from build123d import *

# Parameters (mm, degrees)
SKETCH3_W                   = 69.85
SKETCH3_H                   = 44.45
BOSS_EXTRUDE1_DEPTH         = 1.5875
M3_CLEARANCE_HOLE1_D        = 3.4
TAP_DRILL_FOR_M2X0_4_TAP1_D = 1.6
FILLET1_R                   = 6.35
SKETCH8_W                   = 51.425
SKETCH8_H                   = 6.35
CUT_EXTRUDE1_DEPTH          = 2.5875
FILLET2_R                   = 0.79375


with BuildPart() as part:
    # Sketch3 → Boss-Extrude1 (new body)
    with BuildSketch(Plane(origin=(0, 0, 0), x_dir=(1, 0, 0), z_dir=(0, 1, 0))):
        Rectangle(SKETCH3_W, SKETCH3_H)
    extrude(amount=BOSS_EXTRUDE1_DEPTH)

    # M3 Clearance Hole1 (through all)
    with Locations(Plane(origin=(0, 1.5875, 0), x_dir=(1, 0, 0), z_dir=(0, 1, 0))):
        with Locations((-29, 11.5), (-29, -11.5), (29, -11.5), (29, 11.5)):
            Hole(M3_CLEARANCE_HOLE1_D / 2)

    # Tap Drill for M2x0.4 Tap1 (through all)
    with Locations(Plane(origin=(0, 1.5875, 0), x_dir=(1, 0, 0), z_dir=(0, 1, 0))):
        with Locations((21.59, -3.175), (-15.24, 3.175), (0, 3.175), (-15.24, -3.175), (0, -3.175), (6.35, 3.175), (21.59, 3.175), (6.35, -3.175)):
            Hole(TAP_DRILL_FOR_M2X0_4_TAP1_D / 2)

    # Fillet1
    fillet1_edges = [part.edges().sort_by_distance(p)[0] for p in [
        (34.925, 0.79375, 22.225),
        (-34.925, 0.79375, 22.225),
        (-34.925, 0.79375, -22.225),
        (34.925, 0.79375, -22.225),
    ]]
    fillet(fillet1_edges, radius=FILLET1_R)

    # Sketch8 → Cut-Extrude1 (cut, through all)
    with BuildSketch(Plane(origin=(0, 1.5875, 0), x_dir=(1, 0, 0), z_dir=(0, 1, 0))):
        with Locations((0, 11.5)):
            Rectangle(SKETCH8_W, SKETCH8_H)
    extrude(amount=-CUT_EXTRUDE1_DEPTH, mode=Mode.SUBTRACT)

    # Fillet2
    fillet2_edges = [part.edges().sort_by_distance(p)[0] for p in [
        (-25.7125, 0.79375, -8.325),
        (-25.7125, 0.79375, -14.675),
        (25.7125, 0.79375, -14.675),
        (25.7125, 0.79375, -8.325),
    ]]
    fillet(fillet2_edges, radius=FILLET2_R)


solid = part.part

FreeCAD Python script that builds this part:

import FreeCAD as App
import Part
import Sketcher
Q = App.Units.Quantity


def edges_at(feature, points):
    """Names of the edges that pass closest to the given points."""
    edges = feature.Shape.Edges
    near = lambda p: min(range(len(edges)), key=lambda i: edges[i].distToShape(Part.Vertex(*p))[0])
    return sorted({f"Edge{near(p) + 1}" for p in points})


def add_polygon(sketch, points):
    """Adds a closed chain of lines whose ends are joined by coincident constraints."""
    first, n = sketch.GeometryCount, len(points)
    for a, b in zip(points, points[1:] + points[:1]):
        sketch.addGeometry(Part.LineSegment(App.Vector(*a, 0), App.Vector(*b, 0)), False)
    for i in range(n):
        sketch.addConstraint(Sketcher.Constraint("Coincident", first + i, 2, first + (i + 1) % n, 1))

doc = App.newDocument("Part")
body = doc.addObject("PartDesign::Body", "Body")

# Sketch on XZ plane
sketch1 = doc.addObject("Sketcher::SketchObject", "Sketch")
body.addObject(sketch1)
sketch1.AttachmentSupport = (doc.XZ_Plane, [""])
sketch1.MapMode = "FlatFace"
add_polygon(sketch1, [(-35, -22), (-35, 22), (35, 22), (35, -22)])  # lines 0-3
sketch1.addConstraint([
    Sketcher.Constraint("Vertical", 0),
    Sketcher.Constraint("Horizontal", 1),
    Sketcher.Constraint("Vertical", 2),
    Sketcher.Constraint("Horizontal", 3),
    Sketcher.Constraint("Symmetric", 0, 2, 2, 2, -1, 1),
    Sketcher.Constraint("DistanceX", 1, 1, 1, 2, Q("2.75 in")),
    Sketcher.Constraint("DistanceY", 0, 1, 0, 2, Q("1.75 in")),
])
pad1 = doc.addObject("PartDesign::Pad", "Pad")
body.addObject(pad1)
pad1.Profile = sketch1
pad1.Length = Q("0.0625 in")
pad1.Reversed = True

# Sketch on XZ plane
sketch2 = doc.addObject("Sketcher::SketchObject", "Sketch001")
body.addObject(sketch2)
sketch2.AttachmentSupport = (doc.XZ_Plane, [""])
sketch2.MapMode = "FlatFace"
sketch2.AttachmentOffset = App.Placement(App.Vector(0, 0, -0.0625 * 25.4), App.Rotation())
sketch2.addGeometry([
    Part.Circle(App.Vector(-29, -11.5, 0), App.Vector(0, 0, 1), 1.7),
    Part.Circle(App.Vector(-29, 11.5, 0), App.Vector(0, 0, 1), 1.7),
    Part.Circle(App.Vector(29, 11.5, 0), App.Vector(0, 0, 1), 1.7),
    Part.Circle(App.Vector(29, -11.5, 0), App.Vector(0, 0, 1), 1.7),
], False)
sketch2.addConstraint([
    Sketcher.Constraint("Equal", 0, 1),
    Sketcher.Constraint("Equal", 1, 2),
    Sketcher.Constraint("Equal", 2, 3),
    Sketcher.Constraint("Symmetric", 0, 3, 2, 3, -1, 1),
    Sketcher.Constraint("Symmetric", 1, 3, 3, 3, -1, 1),
    Sketcher.Constraint("Symmetric", 1, 3, 2, 3, -2),
    Sketcher.Constraint("Diameter", 0, Q("3.4 mm")),
    Sketcher.Constraint("DistanceX", 0, 3, -1, 1, Q("29 mm")),
    Sketcher.Constraint("DistanceY", 0, 3, -1, 1, Q("11.5 mm")),
])
doc.recompute()
hole = doc.addObject("PartDesign::Hole", "Hole")
body.addObject(hole)
hole.Profile = sketch2
hole.ThreadType = "None"
hole.Diameter = 3.4
hole.DepthType = "ThroughAll"
hole.Reversed = True

# Sketch on XZ plane
sketch3 = doc.addObject("Sketcher::SketchObject", "Sketch002")
body.addObject(sketch3)
sketch3.AttachmentSupport = (doc.XZ_Plane, [""])
sketch3.MapMode = "FlatFace"
sketch3.AttachmentOffset = App.Placement(App.Vector(0, 0, -0.0625 * 25.4), App.Rotation())
sketch3.addGeometry([
    Part.Circle(App.Vector(21.6, 3.2, 0), App.Vector(0, 0, 1), 0.8),  # 0
    Part.Circle(App.Vector(-15.2, -3.2, 0), App.Vector(0, 0, 1), 0.8),  # 1
    Part.Circle(App.Vector(0, -3.2, 0), App.Vector(0, 0, 1), 0.8),  # 2
    Part.Circle(App.Vector(-15.2, 3.2, 0), App.Vector(0, 0, 1), 0.8),  # 3
    Part.Circle(App.Vector(0, 3.2, 0), App.Vector(0, 0, 1), 0.8),  # 4
    Part.Circle(App.Vector(6.3, -3.2, 0), App.Vector(0, 0, 1), 0.8),  # 5
    Part.Circle(App.Vector(21.6, -3.2, 0), App.Vector(0, 0, 1), 0.8),  # 6
    Part.Circle(App.Vector(6.3, 3.2, 0), App.Vector(0, 0, 1), 0.8),  # 7
], False)
sketch3.addConstraint([
    Sketcher.Constraint("Equal", 0, 1),
    Sketcher.Constraint("Equal", 1, 2),
    Sketcher.Constraint("Equal", 2, 3),
    Sketcher.Constraint("Equal", 3, 4),
    Sketcher.Constraint("Equal", 4, 5),
    Sketcher.Constraint("Equal", 5, 6),
    Sketcher.Constraint("Equal", 6, 7),
    Sketcher.Constraint("Symmetric", 2, 3, 4, 3, -1, 1),
    Sketcher.Constraint("Symmetric", 1, 3, 3, 3, -1),
    Sketcher.Constraint("Symmetric", 0, 3, 6, 3, -1),
    Sketcher.Constraint("Symmetric", 5, 3, 7, 3, -1),
    Sketcher.Constraint("PointOnObject", 2, 3, -2),
    Sketcher.Constraint("Horizontal", 1, 3, 2, 3),
    Sketcher.Constraint("Horizontal", 0, 3, 3, 3),
    Sketcher.Constraint("Horizontal", 2, 3, 5, 3),
    Sketcher.Constraint("DistanceX", 1, 3, -1, 1, Q("0.6 in")),
    Sketcher.Constraint("DistanceX", 5, 3, 0, 3, Q("0.6 in")),
    Sketcher.Constraint("Diameter", 0, Q("1.6 mm")),
    Sketcher.Constraint("DistanceX", -1, 1, 0, 3, Q("0.85 in")),
    Sketcher.Constraint("DistanceY", 1, 3, 0, 3, Q("0.25 in")),
])
doc.recompute()
hole2 = doc.addObject("PartDesign::Hole", "Hole001")
body.addObject(hole2)
hole2.Profile = sketch3
hole2.ThreadType = "None"
hole2.Diameter = 1.6
hole2.DepthType = "ThroughAll"
hole2.Reversed = True
doc.recompute()

fillet = doc.addObject("PartDesign::Fillet", "Fillet")
body.addObject(fillet)
fillet.Base = (hole2, edges_at(hole2, [
    (34.925, 0.794, 22.225),
    (-34.925, 0.794, 22.225),
    (-34.925, 0.794, -22.225),
    (34.925, 0.794, -22.225),
]))
fillet.Radius = Q("0.25 in")

# Sketch on XZ plane
sketch4 = doc.addObject("Sketcher::SketchObject", "Sketch003")
body.addObject(sketch4)
sketch4.AttachmentSupport = (doc.XZ_Plane, [""])
sketch4.MapMode = "FlatFace"
sketch4.AttachmentOffset = App.Placement(App.Vector(0, 0, -0.0625 * 25.4), App.Rotation())
add_polygon(sketch4, [(-26, -15), (-26, -8), (26, -8), (26, -15)])  # lines 0-3
sketch4.addConstraint([
    Sketcher.Constraint("Vertical", 0),
    Sketcher.Constraint("Horizontal", 1),
    Sketcher.Constraint("Vertical", 2),
    Sketcher.Constraint("Horizontal", 3),
    Sketcher.Constraint("DistanceY", 0, 1, 0, 2, Q("0.25 in")),
    Sketcher.Constraint("DistanceX", 1, 1, 1, 2, Q("51.425 mm")),
    Sketcher.Constraint("DistanceX", 0, 2, -1, 1, Q("25.7125 mm")),
    Sketcher.Constraint("DistanceY", 0, 2, -1, 1, Q("8.325 mm")),
])
pocket1 = doc.addObject("PartDesign::Pocket", "Pocket")
body.addObject(pocket1)
pocket1.Profile = sketch4
pocket1.Type = "ThroughAll"
pocket1.Reversed = True
doc.recompute()

fillet2 = doc.addObject("PartDesign::Fillet", "Fillet001")
body.addObject(fillet2)
fillet2.Base = (pocket1, edges_at(pocket1, [
    (-25.712, 0.794, -8.325),
    (-25.712, 0.794, -14.675),
    (25.712, 0.794, -14.675),
    (25.712, 0.794, -8.325),
]))
fillet2.Radius = Q("0.03125 in")

doc.recompute()
